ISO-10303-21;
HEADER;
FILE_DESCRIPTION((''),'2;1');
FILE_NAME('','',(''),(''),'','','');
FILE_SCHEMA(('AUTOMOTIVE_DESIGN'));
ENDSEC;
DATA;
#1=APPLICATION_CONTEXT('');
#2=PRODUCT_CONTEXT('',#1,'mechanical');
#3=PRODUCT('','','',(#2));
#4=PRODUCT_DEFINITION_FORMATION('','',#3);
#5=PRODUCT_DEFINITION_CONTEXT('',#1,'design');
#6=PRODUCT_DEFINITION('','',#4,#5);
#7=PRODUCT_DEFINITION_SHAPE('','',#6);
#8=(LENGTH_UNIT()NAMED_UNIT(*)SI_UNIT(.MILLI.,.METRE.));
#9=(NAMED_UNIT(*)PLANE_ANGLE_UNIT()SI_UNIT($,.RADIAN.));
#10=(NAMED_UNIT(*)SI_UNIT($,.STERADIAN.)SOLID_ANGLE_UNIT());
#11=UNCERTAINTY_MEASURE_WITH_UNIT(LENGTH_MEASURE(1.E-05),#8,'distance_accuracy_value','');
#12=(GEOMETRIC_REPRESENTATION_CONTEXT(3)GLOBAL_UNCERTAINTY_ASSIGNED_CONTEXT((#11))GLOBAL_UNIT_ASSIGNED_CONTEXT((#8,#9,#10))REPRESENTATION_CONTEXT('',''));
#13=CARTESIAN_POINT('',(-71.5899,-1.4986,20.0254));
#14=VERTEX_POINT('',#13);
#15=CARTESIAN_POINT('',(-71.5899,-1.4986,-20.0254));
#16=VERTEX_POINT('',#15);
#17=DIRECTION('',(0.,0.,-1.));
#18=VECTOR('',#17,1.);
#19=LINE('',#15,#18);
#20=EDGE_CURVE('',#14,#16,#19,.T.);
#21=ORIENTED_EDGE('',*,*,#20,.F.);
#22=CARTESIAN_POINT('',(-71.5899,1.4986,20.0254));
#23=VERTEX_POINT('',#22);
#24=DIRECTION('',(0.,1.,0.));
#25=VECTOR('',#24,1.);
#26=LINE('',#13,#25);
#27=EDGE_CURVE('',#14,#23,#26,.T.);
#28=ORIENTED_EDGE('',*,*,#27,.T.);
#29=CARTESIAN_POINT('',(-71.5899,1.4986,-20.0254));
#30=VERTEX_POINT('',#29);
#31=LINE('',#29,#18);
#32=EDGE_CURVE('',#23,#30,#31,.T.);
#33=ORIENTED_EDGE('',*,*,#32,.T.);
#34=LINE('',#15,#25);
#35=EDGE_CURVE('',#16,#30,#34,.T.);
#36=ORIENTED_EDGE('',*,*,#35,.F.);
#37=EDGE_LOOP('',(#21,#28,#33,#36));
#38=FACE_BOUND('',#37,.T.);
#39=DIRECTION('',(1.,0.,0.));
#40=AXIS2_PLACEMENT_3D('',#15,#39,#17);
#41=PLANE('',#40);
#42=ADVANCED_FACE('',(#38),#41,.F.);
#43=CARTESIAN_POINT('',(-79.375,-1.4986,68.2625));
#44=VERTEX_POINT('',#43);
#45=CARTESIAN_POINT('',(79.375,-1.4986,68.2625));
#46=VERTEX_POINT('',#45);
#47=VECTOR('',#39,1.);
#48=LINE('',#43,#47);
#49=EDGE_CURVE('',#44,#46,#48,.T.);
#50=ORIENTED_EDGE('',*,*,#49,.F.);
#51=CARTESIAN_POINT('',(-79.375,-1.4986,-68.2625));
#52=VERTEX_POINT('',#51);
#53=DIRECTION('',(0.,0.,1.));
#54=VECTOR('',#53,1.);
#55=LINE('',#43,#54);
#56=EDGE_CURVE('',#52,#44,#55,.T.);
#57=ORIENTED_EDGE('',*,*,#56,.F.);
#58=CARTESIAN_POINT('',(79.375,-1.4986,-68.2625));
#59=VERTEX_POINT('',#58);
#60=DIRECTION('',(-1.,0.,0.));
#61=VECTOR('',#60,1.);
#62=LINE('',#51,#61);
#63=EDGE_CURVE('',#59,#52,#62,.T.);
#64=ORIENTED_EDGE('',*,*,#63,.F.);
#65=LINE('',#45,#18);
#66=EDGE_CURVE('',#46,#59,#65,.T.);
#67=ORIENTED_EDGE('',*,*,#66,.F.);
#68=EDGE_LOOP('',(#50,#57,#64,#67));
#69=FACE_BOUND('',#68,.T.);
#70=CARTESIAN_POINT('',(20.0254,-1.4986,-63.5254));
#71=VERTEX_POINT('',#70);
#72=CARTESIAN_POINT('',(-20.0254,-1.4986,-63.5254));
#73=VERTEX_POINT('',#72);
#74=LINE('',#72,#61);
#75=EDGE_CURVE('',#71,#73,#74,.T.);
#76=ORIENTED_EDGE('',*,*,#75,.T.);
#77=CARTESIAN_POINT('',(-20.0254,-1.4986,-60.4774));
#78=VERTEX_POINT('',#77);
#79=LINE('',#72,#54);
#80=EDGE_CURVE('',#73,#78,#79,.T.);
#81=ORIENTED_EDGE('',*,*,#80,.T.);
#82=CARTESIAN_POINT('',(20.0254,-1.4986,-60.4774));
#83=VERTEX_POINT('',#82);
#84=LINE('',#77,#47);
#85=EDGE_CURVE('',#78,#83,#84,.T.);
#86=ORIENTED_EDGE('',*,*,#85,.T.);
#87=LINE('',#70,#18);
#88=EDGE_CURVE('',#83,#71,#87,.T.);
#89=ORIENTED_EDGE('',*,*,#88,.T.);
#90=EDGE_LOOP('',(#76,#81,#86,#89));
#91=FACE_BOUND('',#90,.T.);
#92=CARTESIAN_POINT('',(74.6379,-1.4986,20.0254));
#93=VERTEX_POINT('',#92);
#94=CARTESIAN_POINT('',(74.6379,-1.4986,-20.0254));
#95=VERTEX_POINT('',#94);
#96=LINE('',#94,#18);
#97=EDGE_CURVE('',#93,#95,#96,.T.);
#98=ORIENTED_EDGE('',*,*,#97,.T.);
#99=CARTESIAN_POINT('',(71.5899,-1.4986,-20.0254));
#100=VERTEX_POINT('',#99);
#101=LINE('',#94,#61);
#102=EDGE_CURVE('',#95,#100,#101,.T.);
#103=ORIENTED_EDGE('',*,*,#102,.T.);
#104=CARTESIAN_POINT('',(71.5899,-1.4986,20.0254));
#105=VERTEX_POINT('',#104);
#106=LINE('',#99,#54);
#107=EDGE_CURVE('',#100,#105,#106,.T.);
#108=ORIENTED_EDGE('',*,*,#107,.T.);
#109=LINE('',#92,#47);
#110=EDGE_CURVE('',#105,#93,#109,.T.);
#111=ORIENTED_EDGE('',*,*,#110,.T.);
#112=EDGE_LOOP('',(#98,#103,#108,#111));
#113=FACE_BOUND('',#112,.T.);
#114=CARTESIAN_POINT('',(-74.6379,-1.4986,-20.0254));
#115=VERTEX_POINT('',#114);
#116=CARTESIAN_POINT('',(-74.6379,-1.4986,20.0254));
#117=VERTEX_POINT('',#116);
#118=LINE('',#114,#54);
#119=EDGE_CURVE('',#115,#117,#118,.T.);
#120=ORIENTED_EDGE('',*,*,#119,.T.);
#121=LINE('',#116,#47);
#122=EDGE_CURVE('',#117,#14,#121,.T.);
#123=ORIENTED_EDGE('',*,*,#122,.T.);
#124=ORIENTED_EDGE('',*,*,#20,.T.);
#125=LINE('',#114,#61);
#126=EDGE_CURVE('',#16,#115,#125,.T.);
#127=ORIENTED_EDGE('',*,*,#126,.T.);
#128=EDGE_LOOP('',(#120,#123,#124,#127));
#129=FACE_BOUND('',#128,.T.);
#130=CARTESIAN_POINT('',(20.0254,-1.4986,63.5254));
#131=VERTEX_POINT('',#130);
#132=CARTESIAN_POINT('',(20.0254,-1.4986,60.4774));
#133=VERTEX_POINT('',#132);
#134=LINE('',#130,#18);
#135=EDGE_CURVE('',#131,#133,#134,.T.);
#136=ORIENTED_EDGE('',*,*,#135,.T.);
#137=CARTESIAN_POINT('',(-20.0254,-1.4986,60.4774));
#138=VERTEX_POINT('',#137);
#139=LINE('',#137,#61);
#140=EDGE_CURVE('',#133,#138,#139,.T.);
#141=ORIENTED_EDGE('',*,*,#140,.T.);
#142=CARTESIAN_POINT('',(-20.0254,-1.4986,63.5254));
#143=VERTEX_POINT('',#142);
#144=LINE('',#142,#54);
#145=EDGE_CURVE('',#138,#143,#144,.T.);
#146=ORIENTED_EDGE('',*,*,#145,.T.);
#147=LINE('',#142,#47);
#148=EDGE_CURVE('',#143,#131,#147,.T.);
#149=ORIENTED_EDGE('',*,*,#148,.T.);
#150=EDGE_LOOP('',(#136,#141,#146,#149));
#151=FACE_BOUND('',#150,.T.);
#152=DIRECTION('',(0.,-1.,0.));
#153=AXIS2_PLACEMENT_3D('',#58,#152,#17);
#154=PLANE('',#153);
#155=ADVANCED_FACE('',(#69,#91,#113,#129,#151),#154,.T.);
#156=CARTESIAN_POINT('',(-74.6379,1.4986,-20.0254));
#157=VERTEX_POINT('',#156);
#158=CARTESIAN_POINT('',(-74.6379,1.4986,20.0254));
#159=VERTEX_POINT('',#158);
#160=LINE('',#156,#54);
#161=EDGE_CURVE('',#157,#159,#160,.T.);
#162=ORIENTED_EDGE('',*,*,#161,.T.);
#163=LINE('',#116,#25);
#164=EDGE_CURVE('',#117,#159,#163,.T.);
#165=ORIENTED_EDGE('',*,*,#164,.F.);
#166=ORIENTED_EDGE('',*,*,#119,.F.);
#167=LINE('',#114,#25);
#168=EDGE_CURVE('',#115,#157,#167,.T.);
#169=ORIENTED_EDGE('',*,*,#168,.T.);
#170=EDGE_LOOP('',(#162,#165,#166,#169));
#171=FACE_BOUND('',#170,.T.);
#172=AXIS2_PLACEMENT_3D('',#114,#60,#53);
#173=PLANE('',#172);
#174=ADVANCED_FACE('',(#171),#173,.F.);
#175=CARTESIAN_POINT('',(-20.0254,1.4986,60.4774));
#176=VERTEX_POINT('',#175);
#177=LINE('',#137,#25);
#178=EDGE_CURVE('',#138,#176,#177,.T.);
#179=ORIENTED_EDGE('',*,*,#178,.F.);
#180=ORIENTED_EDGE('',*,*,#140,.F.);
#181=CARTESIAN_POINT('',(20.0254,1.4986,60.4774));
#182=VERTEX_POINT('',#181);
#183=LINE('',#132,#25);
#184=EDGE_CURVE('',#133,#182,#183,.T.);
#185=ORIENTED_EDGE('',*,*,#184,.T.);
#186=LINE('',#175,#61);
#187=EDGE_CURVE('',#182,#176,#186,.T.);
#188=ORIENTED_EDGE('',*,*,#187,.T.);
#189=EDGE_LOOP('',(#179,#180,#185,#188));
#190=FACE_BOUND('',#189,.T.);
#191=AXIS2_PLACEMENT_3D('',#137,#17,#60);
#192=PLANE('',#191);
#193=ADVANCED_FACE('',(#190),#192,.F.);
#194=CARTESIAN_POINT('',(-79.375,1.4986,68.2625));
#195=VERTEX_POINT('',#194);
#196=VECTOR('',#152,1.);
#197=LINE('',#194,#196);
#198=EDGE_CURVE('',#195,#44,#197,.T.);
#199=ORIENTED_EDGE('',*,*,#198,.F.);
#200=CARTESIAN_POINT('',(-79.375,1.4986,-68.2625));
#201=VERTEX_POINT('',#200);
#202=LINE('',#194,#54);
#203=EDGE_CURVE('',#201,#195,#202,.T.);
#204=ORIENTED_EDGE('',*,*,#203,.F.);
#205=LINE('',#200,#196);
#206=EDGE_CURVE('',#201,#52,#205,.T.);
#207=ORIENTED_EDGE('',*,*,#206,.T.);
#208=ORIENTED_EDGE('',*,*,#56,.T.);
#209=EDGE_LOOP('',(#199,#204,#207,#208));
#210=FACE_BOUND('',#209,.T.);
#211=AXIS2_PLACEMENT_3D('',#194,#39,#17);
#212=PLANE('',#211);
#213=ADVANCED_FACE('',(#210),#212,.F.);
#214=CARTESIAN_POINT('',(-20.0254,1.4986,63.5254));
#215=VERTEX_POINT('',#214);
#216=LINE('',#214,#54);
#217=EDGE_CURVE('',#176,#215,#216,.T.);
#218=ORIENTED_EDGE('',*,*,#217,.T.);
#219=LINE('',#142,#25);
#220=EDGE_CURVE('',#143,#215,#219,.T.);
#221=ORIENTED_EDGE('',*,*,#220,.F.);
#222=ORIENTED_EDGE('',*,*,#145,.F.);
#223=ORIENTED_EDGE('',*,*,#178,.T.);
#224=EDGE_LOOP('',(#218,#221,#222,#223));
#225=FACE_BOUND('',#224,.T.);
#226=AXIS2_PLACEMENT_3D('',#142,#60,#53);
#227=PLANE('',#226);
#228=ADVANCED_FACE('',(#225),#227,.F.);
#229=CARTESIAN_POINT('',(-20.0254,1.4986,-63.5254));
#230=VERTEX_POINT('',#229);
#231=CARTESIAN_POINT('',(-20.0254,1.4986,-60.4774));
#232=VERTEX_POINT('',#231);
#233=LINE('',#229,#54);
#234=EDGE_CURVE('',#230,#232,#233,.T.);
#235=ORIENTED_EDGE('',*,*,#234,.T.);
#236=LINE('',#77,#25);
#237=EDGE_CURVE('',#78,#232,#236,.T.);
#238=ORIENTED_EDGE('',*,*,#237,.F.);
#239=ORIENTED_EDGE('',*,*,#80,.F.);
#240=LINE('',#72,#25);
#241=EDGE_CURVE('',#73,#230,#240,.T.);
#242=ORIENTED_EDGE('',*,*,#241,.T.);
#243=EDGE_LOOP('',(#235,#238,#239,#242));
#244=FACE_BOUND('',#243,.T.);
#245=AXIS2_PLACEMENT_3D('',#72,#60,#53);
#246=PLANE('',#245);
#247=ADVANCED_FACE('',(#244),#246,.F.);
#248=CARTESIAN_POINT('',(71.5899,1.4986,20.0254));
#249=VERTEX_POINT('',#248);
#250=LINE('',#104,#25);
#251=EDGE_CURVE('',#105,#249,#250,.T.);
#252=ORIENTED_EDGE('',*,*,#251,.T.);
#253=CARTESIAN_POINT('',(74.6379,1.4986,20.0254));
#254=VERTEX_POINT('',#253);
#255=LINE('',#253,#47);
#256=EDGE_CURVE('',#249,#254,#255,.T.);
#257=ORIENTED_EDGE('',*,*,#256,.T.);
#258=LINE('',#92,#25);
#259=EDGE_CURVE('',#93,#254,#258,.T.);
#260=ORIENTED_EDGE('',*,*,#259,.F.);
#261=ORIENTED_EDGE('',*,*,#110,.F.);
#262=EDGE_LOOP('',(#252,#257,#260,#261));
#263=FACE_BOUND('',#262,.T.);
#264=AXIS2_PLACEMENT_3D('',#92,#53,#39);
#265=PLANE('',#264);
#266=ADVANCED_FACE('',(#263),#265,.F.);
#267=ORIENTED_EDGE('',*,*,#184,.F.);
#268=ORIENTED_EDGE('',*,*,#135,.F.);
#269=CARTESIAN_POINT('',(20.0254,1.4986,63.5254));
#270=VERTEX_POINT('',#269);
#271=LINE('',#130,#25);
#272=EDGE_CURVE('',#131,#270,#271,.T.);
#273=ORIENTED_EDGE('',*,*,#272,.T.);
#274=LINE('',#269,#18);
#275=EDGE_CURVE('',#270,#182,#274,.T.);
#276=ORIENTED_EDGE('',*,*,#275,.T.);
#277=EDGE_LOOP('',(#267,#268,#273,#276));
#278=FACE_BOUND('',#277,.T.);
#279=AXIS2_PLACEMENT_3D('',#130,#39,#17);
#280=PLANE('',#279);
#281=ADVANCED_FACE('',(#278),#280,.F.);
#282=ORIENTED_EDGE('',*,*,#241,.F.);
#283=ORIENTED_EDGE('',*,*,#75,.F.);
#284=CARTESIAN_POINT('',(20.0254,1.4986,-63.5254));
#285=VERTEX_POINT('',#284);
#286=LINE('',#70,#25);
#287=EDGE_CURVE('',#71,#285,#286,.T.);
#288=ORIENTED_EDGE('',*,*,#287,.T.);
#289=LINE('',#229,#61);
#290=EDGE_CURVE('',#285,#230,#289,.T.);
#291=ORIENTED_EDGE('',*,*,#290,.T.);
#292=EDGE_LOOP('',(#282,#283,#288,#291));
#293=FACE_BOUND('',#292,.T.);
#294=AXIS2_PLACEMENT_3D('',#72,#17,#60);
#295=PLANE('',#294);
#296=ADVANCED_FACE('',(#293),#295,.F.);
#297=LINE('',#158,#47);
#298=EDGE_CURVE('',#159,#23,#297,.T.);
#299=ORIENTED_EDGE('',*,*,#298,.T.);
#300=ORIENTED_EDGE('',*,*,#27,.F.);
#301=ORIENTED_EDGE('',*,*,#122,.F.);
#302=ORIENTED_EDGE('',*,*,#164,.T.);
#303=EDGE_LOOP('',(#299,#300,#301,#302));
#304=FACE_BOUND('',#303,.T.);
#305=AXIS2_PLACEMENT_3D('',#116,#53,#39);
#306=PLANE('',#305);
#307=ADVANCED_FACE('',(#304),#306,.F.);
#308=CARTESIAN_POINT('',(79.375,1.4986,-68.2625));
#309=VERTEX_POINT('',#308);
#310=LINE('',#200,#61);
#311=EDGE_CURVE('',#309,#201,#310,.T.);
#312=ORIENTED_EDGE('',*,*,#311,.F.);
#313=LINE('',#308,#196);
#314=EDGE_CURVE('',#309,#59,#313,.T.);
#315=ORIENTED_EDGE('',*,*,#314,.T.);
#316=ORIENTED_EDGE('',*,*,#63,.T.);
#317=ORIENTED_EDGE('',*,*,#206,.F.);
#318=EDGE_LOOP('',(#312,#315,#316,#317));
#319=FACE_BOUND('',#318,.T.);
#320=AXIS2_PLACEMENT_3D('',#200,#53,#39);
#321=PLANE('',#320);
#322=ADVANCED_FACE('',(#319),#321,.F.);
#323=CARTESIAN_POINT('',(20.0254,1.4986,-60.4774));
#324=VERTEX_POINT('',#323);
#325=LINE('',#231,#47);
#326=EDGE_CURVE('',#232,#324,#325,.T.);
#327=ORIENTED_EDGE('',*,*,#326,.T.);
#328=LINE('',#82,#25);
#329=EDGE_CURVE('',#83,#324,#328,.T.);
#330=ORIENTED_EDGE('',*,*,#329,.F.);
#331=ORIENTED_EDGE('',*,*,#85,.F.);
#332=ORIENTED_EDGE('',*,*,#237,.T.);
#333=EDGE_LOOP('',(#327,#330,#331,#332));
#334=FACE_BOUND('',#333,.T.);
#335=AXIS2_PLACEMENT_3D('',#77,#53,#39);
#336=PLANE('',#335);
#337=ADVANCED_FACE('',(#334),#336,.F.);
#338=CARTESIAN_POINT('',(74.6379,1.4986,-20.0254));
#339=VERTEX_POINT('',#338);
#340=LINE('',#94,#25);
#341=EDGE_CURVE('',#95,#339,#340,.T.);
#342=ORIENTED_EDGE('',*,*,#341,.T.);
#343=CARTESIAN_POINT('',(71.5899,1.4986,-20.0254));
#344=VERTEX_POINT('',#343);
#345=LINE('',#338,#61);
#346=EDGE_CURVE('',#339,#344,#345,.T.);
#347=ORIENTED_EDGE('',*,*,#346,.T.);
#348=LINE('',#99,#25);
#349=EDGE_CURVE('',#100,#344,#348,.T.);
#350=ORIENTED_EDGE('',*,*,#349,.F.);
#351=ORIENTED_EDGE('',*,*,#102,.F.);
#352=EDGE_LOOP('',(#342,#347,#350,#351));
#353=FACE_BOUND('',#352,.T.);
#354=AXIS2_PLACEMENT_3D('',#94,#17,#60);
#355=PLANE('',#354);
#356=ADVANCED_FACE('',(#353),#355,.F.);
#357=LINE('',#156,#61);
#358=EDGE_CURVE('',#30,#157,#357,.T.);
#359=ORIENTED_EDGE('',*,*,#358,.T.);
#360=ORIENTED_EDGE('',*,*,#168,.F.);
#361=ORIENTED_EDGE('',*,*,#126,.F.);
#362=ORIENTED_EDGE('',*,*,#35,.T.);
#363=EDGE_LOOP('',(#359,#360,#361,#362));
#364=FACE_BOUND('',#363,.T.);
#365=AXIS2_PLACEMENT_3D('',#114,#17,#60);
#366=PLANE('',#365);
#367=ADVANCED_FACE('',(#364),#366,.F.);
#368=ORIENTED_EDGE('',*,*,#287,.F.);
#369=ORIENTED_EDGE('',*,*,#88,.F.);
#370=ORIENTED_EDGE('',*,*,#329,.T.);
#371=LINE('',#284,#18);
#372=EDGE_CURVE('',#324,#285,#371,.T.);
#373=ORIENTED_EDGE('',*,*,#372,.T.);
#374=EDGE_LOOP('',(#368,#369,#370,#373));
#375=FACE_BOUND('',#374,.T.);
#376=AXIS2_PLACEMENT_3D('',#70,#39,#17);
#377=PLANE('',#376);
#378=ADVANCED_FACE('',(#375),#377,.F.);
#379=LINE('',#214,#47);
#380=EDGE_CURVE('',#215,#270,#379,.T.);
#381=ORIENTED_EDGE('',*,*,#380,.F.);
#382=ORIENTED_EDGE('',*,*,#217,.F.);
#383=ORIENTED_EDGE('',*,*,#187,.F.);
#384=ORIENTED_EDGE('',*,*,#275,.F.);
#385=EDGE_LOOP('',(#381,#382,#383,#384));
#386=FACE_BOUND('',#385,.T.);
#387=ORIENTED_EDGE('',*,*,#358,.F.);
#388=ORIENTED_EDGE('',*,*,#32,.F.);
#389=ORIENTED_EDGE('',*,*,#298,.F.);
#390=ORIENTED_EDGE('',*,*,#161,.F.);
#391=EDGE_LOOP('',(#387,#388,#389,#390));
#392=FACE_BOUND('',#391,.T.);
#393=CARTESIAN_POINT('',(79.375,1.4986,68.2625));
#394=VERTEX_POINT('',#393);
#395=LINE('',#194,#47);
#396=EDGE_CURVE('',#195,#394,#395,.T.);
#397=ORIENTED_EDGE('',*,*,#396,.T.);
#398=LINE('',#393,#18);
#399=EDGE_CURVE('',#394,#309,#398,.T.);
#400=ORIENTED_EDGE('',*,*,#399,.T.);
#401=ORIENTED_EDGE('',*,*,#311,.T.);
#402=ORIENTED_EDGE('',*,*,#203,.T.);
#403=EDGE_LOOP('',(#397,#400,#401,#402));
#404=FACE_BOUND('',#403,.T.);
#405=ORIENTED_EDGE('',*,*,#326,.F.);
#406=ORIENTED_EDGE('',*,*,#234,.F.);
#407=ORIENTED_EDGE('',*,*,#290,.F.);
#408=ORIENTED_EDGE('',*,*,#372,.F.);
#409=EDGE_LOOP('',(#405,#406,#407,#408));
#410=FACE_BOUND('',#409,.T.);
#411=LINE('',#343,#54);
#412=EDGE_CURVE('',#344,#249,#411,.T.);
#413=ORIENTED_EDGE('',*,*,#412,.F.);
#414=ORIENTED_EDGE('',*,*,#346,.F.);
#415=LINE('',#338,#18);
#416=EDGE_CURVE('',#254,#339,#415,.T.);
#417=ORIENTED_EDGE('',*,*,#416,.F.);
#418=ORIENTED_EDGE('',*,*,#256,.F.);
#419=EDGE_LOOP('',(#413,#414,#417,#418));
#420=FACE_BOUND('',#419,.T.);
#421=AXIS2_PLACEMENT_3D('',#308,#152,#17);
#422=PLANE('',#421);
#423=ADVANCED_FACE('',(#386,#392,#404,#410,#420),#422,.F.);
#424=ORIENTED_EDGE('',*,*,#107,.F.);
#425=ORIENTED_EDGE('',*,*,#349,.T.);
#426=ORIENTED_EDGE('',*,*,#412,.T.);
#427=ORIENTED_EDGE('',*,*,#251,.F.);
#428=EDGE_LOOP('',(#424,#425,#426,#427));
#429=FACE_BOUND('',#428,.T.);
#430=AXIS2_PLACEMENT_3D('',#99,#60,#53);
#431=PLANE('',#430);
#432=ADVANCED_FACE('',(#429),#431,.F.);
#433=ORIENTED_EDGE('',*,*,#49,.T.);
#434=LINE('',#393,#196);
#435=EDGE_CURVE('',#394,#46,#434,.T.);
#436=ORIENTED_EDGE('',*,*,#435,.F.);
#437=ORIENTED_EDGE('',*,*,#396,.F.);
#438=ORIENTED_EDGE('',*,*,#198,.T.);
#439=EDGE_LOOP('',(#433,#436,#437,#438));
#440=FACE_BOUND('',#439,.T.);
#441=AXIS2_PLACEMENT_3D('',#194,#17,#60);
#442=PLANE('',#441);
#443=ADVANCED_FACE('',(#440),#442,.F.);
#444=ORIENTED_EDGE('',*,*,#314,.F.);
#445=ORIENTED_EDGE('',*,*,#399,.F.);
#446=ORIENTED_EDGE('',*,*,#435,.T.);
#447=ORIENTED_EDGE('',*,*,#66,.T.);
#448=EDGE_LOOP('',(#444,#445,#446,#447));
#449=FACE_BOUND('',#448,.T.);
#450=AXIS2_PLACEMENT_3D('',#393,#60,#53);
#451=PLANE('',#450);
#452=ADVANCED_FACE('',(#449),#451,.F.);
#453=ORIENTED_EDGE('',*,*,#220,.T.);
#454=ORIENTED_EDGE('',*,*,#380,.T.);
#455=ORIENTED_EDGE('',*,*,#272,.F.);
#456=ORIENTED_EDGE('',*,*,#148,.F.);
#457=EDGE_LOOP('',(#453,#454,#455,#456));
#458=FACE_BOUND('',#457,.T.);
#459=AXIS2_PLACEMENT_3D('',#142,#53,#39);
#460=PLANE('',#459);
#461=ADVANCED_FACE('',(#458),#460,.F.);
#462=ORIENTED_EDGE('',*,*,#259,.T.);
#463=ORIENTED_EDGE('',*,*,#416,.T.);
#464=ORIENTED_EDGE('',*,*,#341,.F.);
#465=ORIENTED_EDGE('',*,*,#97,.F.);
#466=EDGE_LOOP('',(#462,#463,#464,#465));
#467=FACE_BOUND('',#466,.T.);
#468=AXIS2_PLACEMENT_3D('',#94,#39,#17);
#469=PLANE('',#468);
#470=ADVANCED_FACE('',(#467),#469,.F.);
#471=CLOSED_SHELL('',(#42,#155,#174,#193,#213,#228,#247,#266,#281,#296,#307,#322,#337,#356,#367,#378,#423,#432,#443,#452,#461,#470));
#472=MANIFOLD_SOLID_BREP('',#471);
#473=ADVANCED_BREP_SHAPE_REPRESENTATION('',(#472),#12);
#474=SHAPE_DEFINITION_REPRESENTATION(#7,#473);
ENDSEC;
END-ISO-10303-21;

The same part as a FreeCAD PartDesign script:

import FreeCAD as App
import Part
import Sketcher

V = App.Vector
Q = App.Units.Quantity


def add_polygon(sketch, points):
    """Adds a closed chain of lines whose ends are joined by coincident constraints."""
    first, n = sketch.GeometryCount, len(points)
    for a, b in zip(points, points[1:] + points[:1]):
        sketch.addGeometry(Part.LineSegment(App.Vector(*a, 0), App.Vector(*b, 0)), False)
    for i in range(n):
        sketch.addConstraint(Sketcher.Constraint("Coincident", first + i, 2, first + (i + 1) % n, 1))

doc = App.newDocument("Part")
body = doc.addObject("PartDesign::Body", "Body")

sketch1 = body.newObject("Sketcher::SketchObject", "Sketch")
sketch1.AttachmentSupport = (doc.getObject("XZ_Plane"), [""])
sketch1.MapMode = "FlatFace"
add_polygon(sketch1, [(-79.375, -68.2625), (-79.375, 68.2625), (79.375, 68.2625), (79.375, -68.2625)])
sketch1.addConstraint([
    Sketcher.Constraint("Vertical", 0),
    Sketcher.Constraint("Horizontal", 1),
    Sketcher.Constraint("Vertical", 2),
    Sketcher.Constraint("Horizontal", 3),
    Sketcher.Constraint("Symmetric", 0, 2, 2, 2, -1, 1),
    Sketcher.Constraint("DistanceX", 1, 1, 1, 2, Q("6.25 in")),
    Sketcher.Constraint("DistanceY", 0, 1, 0, 2, Q("5.375 in")),
])
pad1 = body.newObject("PartDesign::Pad", "Pad")
pad1.Profile = sketch1
pad1.Length = Q("0.118 in")
pad1.Midplane = True

sketch2 = body.newObject("Sketcher::SketchObject", "Sketch001")
sketch2.AttachmentSupport = (doc.getObject("XZ_Plane"), [""])
sketch2.MapMode = "FlatFace"
sketch2.AttachmentOffset = App.Placement(V(0, 0, -0.059 * 25.4), App.Rotation())
add_polygon(sketch2, [(-20.0254, -63.5254), (-20.0254, -60.4774), (20.0254, -60.4774), (20.0254, -63.5254)])
add_polygon(sketch2, [(-74.6379, -20.0254), (-74.6379, 20.0254), (-71.5899, 20.0254), (-71.5899, -20.0254)])
add_polygon(sketch2, [(-20.0254, 60.4774), (-20.0254, 63.5254), (20.0254, 63.5254), (20.0254, 60.4774)])
add_polygon(sketch2, [(71.5899, -20.0254), (71.5899, 20.0254), (74.6379, 20.0254), (74.6379, -20.0254)])
sketch2.addConstraint([
    Sketcher.Constraint("Vertical", 0),
    Sketcher.Constraint("Horizontal", 1),
    Sketcher.Constraint("Vertical", 2),
    Sketcher.Constraint("Horizontal", 3),
    Sketcher.Constraint("Vertical", 4),
    Sketcher.Constraint("Horizontal", 5),
    Sketcher.Constraint("Vertical", 6),
    Sketcher.Constraint("Horizontal", 7),
    Sketcher.Constraint("Vertical", 8),
    Sketcher.Constraint("Horizontal", 9),
    Sketcher.Constraint("Vertical", 10),
    Sketcher.Constraint("Horizontal", 11),
    Sketcher.Constraint("Vertical", 12),
    Sketcher.Constraint("Horizontal", 13),
    Sketcher.Constraint("Vertical", 14),
    Sketcher.Constraint("Horizontal", 15),
    Sketcher.Constraint("Symmetric", 2, 2, 8, 2, -1, 1),
    Sketcher.Constraint("Symmetric", 0, 2, 10, 2, -1, 1),
    Sketcher.Constraint("Symmetric", 6, 2, 12, 2, -1, 1),
    Sketcher.Constraint("Symmetric", 4, 2, 14, 2, -1, 1),
    Sketcher.Constraint("Horizontal", 5, 2, 12, 2),
    Sketcher.Constraint("Vertical", 3, 2, 8, 2),
    Sketcher.Constraint("Equal", 15, 0),
    Sketcher.Constraint("Equal", 11, 4),
    Sketcher.Constraint("DistanceX", 5, 1, 5, 2, Q("0.12 in")),
    Sketcher.Constraint("DistanceY", 0, 2, -1, 1, Q("2.381 in")),
    Sketcher.Constraint("DistanceX", 1, 1, 1, 2, Q("40.0508 mm")),
    Sketcher.Constraint("DistanceX", 4, 2, -1, 1, Q("2.9385 in")),
])
pocket1 = body.newObject("PartDesign::Pocket", "Pocket")
pocket1.Profile = sketch2
pocket1.Type = "ThroughAll"
pocket1.Reversed = True

doc.recompute()
